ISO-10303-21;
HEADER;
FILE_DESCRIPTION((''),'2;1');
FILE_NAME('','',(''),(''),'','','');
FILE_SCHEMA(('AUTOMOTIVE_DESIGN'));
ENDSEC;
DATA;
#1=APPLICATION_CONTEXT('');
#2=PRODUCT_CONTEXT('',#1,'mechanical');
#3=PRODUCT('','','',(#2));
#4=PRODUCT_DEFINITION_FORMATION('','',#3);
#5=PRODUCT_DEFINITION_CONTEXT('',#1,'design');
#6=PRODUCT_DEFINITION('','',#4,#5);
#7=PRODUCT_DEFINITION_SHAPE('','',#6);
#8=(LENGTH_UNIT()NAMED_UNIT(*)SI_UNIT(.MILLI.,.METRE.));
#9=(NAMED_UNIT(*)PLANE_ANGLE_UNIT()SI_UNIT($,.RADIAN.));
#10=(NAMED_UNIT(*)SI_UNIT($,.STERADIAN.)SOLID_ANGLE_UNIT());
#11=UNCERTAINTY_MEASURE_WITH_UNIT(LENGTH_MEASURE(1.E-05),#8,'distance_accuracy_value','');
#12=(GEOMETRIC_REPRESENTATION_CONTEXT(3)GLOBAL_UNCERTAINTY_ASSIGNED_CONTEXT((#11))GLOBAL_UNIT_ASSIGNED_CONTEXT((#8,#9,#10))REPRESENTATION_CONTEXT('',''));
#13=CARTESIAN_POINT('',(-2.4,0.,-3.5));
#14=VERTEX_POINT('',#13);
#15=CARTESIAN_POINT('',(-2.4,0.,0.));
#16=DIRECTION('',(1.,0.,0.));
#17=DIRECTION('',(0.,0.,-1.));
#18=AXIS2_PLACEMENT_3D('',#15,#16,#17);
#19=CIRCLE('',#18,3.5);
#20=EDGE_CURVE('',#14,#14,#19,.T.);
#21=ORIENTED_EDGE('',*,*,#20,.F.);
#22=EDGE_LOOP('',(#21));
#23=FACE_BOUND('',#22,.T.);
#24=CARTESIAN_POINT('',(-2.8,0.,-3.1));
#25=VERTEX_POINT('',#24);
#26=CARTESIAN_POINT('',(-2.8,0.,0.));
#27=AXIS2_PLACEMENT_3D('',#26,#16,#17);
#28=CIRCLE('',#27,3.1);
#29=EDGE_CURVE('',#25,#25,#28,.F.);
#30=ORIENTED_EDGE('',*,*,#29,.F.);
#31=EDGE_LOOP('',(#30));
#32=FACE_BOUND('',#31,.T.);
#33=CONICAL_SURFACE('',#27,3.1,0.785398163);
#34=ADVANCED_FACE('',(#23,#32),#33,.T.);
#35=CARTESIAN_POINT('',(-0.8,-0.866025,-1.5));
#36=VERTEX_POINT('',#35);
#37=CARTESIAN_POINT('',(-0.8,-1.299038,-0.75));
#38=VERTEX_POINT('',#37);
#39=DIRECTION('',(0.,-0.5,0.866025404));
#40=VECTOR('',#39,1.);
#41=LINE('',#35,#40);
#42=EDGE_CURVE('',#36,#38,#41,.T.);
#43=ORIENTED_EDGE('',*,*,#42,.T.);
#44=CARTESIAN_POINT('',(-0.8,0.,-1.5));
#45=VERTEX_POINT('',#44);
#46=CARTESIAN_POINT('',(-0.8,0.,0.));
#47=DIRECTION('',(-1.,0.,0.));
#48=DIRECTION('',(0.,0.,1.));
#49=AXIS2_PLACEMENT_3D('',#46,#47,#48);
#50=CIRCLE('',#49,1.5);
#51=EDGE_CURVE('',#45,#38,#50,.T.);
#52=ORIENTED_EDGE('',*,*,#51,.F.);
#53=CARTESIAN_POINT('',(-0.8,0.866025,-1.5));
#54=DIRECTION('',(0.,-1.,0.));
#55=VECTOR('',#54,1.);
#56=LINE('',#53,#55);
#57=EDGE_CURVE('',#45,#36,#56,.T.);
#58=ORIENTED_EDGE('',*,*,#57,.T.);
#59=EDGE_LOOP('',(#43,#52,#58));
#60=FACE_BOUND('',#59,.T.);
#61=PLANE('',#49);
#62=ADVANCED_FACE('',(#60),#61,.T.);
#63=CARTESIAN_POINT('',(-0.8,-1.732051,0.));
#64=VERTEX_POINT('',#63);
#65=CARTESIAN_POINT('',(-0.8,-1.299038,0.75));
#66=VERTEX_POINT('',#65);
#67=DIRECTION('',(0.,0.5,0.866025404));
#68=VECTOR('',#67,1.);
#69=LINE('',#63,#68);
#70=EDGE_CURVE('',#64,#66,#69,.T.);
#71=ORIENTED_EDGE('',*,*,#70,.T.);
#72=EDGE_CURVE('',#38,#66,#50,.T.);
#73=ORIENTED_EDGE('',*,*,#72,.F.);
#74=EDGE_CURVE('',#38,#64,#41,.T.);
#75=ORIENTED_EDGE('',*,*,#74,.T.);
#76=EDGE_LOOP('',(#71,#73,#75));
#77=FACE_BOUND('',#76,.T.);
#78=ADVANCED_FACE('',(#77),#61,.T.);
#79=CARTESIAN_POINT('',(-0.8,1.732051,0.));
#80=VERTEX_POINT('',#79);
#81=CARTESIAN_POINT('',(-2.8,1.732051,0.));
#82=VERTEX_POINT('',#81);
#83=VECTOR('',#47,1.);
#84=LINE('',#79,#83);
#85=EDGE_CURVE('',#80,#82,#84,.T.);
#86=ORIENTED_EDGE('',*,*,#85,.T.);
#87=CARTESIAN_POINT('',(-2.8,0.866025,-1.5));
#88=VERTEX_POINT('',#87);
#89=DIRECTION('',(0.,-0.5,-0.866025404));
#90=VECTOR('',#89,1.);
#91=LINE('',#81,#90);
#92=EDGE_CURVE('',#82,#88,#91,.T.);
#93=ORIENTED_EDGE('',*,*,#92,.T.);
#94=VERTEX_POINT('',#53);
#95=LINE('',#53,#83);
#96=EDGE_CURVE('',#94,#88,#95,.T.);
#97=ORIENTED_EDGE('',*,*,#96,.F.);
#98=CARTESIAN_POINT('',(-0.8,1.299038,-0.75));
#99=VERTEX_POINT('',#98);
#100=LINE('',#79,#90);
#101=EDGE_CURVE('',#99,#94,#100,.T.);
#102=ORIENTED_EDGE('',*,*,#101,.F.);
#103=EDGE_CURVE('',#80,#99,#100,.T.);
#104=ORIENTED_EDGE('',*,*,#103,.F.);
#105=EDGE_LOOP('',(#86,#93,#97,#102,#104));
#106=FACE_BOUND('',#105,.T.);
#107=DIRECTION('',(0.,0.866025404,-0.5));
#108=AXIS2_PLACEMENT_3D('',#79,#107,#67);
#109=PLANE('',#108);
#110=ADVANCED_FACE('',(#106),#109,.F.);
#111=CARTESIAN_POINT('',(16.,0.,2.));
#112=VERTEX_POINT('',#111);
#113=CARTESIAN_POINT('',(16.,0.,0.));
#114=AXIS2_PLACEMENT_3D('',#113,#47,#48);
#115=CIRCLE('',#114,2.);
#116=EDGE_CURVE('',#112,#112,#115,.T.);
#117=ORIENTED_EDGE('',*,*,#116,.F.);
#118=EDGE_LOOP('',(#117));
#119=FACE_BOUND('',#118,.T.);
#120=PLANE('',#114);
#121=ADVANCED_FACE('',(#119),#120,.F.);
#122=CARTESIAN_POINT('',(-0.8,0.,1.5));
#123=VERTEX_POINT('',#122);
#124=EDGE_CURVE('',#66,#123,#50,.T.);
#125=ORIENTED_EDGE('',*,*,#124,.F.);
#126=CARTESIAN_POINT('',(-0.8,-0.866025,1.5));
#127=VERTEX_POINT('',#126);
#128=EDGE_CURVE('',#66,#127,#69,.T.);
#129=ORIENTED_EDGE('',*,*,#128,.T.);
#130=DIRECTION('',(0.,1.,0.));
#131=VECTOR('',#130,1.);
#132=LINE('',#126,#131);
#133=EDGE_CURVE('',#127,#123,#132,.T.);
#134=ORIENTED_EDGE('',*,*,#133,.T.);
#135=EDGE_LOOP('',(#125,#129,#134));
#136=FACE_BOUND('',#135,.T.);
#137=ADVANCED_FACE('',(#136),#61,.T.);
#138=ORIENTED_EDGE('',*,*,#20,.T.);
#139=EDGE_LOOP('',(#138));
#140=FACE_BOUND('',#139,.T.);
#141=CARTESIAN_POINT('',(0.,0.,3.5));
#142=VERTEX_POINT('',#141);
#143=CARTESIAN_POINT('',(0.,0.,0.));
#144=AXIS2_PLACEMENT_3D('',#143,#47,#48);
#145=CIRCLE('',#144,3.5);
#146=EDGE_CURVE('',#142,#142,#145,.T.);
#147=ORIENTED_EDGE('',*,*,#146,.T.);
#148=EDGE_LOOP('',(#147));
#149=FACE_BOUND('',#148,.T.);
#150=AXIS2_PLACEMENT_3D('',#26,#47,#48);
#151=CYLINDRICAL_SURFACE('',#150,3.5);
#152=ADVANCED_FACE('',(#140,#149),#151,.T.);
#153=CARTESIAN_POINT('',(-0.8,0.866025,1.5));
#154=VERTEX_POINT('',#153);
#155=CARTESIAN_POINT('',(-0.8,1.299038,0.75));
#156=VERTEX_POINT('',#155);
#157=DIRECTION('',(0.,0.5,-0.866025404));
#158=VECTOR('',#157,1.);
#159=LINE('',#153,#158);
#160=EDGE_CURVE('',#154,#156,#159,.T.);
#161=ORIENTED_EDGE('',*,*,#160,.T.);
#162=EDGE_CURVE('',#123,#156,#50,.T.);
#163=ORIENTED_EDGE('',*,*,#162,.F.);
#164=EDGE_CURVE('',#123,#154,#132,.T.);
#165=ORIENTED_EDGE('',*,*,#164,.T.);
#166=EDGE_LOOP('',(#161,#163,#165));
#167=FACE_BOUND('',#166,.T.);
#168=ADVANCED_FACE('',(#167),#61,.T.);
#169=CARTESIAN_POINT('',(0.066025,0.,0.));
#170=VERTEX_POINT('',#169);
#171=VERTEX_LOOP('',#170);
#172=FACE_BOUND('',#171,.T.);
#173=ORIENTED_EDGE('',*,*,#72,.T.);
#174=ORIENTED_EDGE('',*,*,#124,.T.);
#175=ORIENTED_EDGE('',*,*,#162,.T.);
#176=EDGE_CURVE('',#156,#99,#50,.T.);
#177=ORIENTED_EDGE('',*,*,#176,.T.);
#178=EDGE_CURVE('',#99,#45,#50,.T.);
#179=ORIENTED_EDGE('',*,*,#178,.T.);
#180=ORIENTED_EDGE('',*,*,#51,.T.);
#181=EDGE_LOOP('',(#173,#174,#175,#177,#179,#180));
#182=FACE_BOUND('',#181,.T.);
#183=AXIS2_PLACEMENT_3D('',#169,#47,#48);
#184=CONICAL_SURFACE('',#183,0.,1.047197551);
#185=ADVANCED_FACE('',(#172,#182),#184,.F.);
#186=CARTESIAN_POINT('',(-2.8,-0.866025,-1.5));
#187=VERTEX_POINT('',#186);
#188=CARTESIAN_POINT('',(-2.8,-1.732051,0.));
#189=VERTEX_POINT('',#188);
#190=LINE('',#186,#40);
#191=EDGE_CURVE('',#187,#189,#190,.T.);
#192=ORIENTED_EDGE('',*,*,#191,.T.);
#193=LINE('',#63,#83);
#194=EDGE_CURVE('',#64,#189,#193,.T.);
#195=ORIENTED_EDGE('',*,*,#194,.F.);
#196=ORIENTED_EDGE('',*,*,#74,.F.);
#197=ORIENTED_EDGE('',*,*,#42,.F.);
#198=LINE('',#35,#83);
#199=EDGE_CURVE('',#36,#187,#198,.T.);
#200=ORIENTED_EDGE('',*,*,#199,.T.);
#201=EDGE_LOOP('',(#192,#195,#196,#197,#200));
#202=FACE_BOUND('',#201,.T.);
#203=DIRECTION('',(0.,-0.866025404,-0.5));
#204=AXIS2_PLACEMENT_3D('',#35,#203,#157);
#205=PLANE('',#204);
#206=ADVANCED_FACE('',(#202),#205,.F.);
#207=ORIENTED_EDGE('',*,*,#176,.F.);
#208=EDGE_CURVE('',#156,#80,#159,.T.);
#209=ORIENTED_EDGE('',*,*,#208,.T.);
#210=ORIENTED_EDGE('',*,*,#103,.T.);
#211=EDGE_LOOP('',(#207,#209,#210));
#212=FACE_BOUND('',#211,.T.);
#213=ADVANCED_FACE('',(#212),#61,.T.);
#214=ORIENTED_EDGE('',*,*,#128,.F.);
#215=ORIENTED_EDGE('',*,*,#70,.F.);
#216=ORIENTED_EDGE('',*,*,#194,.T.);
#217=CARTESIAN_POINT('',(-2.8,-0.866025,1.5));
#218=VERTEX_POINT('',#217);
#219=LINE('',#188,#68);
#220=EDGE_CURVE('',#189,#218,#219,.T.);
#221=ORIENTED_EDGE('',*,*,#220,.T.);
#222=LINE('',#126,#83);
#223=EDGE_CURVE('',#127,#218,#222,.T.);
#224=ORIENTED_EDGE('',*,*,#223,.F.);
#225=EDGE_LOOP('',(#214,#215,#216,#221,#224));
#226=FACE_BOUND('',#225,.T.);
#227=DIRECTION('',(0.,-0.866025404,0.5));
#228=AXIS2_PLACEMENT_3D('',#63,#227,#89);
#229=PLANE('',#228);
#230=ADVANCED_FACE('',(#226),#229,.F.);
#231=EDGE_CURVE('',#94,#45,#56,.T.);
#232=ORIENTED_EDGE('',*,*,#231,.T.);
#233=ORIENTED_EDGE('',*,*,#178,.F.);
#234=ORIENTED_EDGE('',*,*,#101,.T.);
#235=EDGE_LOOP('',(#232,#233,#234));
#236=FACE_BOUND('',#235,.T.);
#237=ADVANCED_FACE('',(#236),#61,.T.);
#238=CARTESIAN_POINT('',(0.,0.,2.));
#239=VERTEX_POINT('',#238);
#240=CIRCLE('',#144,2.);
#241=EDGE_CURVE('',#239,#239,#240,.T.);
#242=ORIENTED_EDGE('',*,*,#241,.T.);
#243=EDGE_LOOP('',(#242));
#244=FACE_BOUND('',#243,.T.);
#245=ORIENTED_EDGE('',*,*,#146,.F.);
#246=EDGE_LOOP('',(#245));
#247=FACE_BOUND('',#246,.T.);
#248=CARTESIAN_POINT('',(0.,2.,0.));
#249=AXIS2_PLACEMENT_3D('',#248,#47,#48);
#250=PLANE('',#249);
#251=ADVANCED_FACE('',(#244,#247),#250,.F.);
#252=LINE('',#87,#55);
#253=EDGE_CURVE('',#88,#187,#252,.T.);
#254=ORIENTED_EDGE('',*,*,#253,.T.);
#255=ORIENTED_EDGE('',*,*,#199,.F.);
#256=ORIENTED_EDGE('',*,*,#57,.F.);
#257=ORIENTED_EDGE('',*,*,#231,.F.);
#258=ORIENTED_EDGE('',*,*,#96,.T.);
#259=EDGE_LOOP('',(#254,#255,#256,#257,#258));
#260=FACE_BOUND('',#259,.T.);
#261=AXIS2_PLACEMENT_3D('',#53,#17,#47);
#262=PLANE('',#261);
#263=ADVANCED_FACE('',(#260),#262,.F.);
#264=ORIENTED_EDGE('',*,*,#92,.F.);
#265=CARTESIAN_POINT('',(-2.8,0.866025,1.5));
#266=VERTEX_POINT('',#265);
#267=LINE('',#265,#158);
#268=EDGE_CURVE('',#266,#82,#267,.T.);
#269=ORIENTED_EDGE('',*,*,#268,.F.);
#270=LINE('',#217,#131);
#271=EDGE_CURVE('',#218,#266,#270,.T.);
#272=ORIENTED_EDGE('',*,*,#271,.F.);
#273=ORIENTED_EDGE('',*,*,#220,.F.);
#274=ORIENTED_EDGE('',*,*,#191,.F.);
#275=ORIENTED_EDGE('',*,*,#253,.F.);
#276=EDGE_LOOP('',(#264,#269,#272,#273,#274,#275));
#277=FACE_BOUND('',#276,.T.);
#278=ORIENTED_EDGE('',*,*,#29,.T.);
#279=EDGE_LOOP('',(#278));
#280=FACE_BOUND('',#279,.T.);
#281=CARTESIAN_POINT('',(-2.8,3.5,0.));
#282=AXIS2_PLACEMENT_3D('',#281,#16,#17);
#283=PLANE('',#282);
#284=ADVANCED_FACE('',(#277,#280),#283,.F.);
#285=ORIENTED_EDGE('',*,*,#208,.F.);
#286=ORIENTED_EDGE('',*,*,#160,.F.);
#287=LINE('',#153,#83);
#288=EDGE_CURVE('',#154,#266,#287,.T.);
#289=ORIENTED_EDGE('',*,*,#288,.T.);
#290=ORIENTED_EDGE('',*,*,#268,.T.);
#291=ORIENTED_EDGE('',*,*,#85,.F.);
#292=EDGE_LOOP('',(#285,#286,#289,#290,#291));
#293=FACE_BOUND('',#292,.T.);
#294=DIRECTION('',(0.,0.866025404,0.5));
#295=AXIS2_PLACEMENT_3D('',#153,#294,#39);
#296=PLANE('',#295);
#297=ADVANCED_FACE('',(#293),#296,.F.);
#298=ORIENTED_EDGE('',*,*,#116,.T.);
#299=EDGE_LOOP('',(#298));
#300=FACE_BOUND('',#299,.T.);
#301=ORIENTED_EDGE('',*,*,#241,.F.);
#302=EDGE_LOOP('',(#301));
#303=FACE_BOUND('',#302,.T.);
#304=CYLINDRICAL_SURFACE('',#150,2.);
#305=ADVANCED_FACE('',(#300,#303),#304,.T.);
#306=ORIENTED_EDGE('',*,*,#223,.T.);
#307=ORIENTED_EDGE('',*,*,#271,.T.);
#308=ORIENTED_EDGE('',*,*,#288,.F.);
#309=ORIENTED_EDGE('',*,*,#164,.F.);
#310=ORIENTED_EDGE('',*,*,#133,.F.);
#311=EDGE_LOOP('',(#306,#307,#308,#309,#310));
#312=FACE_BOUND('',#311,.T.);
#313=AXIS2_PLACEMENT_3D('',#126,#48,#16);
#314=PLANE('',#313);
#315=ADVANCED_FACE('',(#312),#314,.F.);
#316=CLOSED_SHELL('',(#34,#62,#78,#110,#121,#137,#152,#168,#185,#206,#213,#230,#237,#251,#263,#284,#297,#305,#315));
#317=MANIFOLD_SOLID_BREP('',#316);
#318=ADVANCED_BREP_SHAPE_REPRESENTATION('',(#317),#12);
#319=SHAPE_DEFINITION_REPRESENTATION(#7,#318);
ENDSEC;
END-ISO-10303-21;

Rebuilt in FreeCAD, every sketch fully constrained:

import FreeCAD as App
import Part
import Sketcher
Q = App.Units.Quantity


def edges_at(feature, points):
    """Names of the edges that pass closest to the given points."""
    edges = feature.Shape.Edges
    near = lambda p: min(range(len(edges)), key=lambda i: edges[i].distToShape(Part.Vertex(*p))[0])
    return sorted({f"Edge{near(p) + 1}" for p in points})

doc = App.newDocument("Part")
params = doc.addObject("Spreadsheet::Sheet", "Params")
for row, (alias, value) in enumerate([
    ("sketch1_width", "16 mm"),
    ("sketch1_height", "2 mm"),
    ("sketch1_width2", "2.8 mm"),
    ("sketch1_height2", "1.5 mm"),
    ("revolution_angle", "360 deg"),
    ("pocket1_length", "2 mm"),
    ("sketch3_height", "1.5 mm"),
    ("groove_angle", "360 deg"),
    ("chamfer_size", "0.4 mm"),
], start=1):
    params.set(f"A{row}", alias)
    params.set(f"B{row}", "=" + value)
    params.setAlias(f"B{row}", alias)

body = doc.addObject("PartDesign::Body", "Body")

# Sketch on XY plane
sketch1 = body.newObject("Sketcher::SketchObject", "Sketch")
sketch1.AttachmentSupport = (doc.getObject("XY_Plane"), [""])
sketch1.MapMode = "FlatFace"
sketch1.addGeometry([
    Part.LineSegment(App.Vector(16, 0, 0), App.Vector(16, 2, 0)),  # 0
    Part.LineSegment(App.Vector(16, 2, 0), App.Vector(0, 2, 0)),  # 1
    Part.LineSegment(App.Vector(0, 2, 0), App.Vector(0, 3.5, 0)),  # 2
    Part.LineSegment(App.Vector(0, 3.5, 0), App.Vector(-2.8, 3.5, 0)),  # 3
    Part.LineSegment(App.Vector(-2.8, 3.5, 0), App.Vector(-2.8, 0, 0)),  # 4
    Part.LineSegment(App.Vector(-2.8, 0, 0), App.Vector(16, 0, 0)),  # 5
], False)
sketch1.addConstraint([
    Sketcher.Constraint("Coincident", 0, 2, 1, 1),
    Sketcher.Constraint("Coincident", 1, 2, 2, 1),
    Sketcher.Constraint("Coincident", 2, 2, 3, 1),
    Sketcher.Constraint("Coincident", 3, 2, 4, 1),
    Sketcher.Constraint("Coincident", 4, 2, 5, 1),
    Sketcher.Constraint("Coincident", 5, 2, 0, 1),
    Sketcher.Constraint("Vertical", 0),
    Sketcher.Constraint("Horizontal", 1),
    Sketcher.Constraint("Vertical", 2),
    Sketcher.Constraint("Horizontal", 3),
    Sketcher.Constraint("Vertical", 4),
    Sketcher.Constraint("Horizontal", 5),
    Sketcher.Constraint("PointOnObject", 1, 2, -2),
    Sketcher.Constraint("PointOnObject", 4, 2, -1),
    Sketcher.Constraint("DistanceX", 1, 2, 1, 1, 16.0),
    Sketcher.Constraint("DistanceY", 0, 1, 0, 2, 2.0),
    Sketcher.Constraint("DistanceX", 3, 2, 3, 1, 2.8),
    Sketcher.Constraint("DistanceY", 2, 1, 2, 2, 1.5),
])
sketch1.setExpression("Constraints[14]", "Params.sketch1_width")
sketch1.setExpression("Constraints[15]", "Params.sketch1_height")
sketch1.setExpression("Constraints[16]", "Params.sketch1_width2")
sketch1.setExpression("Constraints[17]", "Params.sketch1_height2")
revolution = body.newObject("PartDesign::Revolution", "Revolution")
revolution.Profile = sketch1
revolution.ReferenceAxis = (sketch1, ["H_Axis"])
revolution.setExpression("Angle", "Params.revolution_angle")

# Sketch on YZ plane
sketch2 = body.newObject("Sketcher::SketchObject", "Sketch001")
sketch2.AttachmentSupport = (doc.getObject("YZ_Plane"), [""])
sketch2.MapMode = "FlatFace"
sketch2.AttachmentOffset = App.Placement(App.Vector(0, 0, -2.8), App.Rotation())
sketch2.addGeometry([
    Part.LineSegment(App.Vector(1.7, 0, 0), App.Vector(0.9, -1.5, 0)),  # 0
    Part.LineSegment(App.Vector(0.9, -1.5, 0), App.Vector(-0.9, -1.5, 0)),  # 1
    Part.LineSegment(App.Vector(-0.9, -1.5, 0), App.Vector(-1.7, 0, 0)),  # 2
    Part.LineSegment(App.Vector(-1.7, 0, 0), App.Vector(-0.9, 1.5, 0)),  # 3
    Part.LineSegment(App.Vector(-0.9, 1.5, 0), App.Vector(0.9, 1.5, 0)),  # 4
    Part.LineSegment(App.Vector(0.9, 1.5, 0), App.Vector(1.7, 0, 0)),  # 5
], False)
sketch2.addConstraint([
    Sketcher.Constraint("Coincident", 0, 2, 1, 1),
    Sketcher.Constraint("Coincident", 1, 2, 2, 1),
    Sketcher.Constraint("Coincident", 2, 2, 3, 1),
    Sketcher.Constraint("Coincident", 3, 2, 4, 1),
    Sketcher.Constraint("Coincident", 4, 2, 5, 1),
    Sketcher.Constraint("Coincident", 5, 2, 0, 1),
    Sketcher.Constraint("Horizontal", 1),
    Sketcher.Constraint("Horizontal", 4),
    Sketcher.Constraint("Symmetric", 0, 2, 3, 2, -1, 1),
    Sketcher.Constraint("Symmetric", 2, 2, 5, 2, -1, 1),
    Sketcher.Constraint("PointOnObject", 2, 2, -1),
    Sketcher.Constraint("Parallel", 2, 5),
    Sketcher.Constraint("Vertical", 1, 2, 3, 2),
    Sketcher.Constraint("Angle", 0, Q("-120 deg")),
    Sketcher.Constraint("DistanceY", 1, 2, 3, 2, 3.0),
    Sketcher.Constraint("DistanceX", 1, 2, 1, 1, 1.732051),
])
pocket1 = body.newObject("PartDesign::Pocket", "Pocket")
pocket1.Profile = sketch2
pocket1.setExpression("Length", "Params.pocket1_length")
pocket1.Reversed = True

# Sketch on XY plane
sketch3 = body.newObject("Sketcher::SketchObject", "Sketch002")
sketch3.AttachmentSupport = (doc.getObject("XY_Plane"), [""])
sketch3.MapMode = "FlatFace"
sketch3.addGeometry([
    Part.LineSegment(App.Vector(0.1, 0, 0), App.Vector(-0.8, 1.5, 0)),
    Part.LineSegment(App.Vector(-0.8, 1.5, 0), App.Vector(-0.8, 0, 0)),
    Part.LineSegment(App.Vector(-0.8, 0, 0), App.Vector(0.1, 0, 0)),
], False)
sketch3.addConstraint([
    Sketcher.Constraint("Coincident", 0, 2, 1, 1),
    Sketcher.Constraint("Coincident", 1, 2, 2, 1),
    Sketcher.Constraint("Coincident", 2, 2, 0, 1),
    Sketcher.Constraint("Vertical", 1),
    Sketcher.Constraint("Horizontal", 2),
    Sketcher.Constraint("PointOnObject", 1, 2, -1),
    Sketcher.Constraint("Angle", 0, Q("120 deg")),
    Sketcher.Constraint("DistanceY", 1, 2, 1, 1, 1.5),
    Sketcher.Constraint("DistanceX", 0, 2, -1, 1, 0.8),
])
sketch3.setExpression("Constraints[7]", "Params.sketch3_height")
groove = body.newObject("PartDesign::Groove", "Groove")
groove.Profile = sketch3
groove.ReferenceAxis = (sketch3, ["H_Axis"])
groove.setExpression("Angle", "Params.groove_angle")
doc.recompute()

chamfer = body.newObject("PartDesign::Chamfer", "Chamfer")
chamfer.Base = (groove, edges_at(groove, [(-2.8, 0, -3.5)]))
chamfer.setExpression("Size", "Params.chamfer_size")

doc.recompute()
